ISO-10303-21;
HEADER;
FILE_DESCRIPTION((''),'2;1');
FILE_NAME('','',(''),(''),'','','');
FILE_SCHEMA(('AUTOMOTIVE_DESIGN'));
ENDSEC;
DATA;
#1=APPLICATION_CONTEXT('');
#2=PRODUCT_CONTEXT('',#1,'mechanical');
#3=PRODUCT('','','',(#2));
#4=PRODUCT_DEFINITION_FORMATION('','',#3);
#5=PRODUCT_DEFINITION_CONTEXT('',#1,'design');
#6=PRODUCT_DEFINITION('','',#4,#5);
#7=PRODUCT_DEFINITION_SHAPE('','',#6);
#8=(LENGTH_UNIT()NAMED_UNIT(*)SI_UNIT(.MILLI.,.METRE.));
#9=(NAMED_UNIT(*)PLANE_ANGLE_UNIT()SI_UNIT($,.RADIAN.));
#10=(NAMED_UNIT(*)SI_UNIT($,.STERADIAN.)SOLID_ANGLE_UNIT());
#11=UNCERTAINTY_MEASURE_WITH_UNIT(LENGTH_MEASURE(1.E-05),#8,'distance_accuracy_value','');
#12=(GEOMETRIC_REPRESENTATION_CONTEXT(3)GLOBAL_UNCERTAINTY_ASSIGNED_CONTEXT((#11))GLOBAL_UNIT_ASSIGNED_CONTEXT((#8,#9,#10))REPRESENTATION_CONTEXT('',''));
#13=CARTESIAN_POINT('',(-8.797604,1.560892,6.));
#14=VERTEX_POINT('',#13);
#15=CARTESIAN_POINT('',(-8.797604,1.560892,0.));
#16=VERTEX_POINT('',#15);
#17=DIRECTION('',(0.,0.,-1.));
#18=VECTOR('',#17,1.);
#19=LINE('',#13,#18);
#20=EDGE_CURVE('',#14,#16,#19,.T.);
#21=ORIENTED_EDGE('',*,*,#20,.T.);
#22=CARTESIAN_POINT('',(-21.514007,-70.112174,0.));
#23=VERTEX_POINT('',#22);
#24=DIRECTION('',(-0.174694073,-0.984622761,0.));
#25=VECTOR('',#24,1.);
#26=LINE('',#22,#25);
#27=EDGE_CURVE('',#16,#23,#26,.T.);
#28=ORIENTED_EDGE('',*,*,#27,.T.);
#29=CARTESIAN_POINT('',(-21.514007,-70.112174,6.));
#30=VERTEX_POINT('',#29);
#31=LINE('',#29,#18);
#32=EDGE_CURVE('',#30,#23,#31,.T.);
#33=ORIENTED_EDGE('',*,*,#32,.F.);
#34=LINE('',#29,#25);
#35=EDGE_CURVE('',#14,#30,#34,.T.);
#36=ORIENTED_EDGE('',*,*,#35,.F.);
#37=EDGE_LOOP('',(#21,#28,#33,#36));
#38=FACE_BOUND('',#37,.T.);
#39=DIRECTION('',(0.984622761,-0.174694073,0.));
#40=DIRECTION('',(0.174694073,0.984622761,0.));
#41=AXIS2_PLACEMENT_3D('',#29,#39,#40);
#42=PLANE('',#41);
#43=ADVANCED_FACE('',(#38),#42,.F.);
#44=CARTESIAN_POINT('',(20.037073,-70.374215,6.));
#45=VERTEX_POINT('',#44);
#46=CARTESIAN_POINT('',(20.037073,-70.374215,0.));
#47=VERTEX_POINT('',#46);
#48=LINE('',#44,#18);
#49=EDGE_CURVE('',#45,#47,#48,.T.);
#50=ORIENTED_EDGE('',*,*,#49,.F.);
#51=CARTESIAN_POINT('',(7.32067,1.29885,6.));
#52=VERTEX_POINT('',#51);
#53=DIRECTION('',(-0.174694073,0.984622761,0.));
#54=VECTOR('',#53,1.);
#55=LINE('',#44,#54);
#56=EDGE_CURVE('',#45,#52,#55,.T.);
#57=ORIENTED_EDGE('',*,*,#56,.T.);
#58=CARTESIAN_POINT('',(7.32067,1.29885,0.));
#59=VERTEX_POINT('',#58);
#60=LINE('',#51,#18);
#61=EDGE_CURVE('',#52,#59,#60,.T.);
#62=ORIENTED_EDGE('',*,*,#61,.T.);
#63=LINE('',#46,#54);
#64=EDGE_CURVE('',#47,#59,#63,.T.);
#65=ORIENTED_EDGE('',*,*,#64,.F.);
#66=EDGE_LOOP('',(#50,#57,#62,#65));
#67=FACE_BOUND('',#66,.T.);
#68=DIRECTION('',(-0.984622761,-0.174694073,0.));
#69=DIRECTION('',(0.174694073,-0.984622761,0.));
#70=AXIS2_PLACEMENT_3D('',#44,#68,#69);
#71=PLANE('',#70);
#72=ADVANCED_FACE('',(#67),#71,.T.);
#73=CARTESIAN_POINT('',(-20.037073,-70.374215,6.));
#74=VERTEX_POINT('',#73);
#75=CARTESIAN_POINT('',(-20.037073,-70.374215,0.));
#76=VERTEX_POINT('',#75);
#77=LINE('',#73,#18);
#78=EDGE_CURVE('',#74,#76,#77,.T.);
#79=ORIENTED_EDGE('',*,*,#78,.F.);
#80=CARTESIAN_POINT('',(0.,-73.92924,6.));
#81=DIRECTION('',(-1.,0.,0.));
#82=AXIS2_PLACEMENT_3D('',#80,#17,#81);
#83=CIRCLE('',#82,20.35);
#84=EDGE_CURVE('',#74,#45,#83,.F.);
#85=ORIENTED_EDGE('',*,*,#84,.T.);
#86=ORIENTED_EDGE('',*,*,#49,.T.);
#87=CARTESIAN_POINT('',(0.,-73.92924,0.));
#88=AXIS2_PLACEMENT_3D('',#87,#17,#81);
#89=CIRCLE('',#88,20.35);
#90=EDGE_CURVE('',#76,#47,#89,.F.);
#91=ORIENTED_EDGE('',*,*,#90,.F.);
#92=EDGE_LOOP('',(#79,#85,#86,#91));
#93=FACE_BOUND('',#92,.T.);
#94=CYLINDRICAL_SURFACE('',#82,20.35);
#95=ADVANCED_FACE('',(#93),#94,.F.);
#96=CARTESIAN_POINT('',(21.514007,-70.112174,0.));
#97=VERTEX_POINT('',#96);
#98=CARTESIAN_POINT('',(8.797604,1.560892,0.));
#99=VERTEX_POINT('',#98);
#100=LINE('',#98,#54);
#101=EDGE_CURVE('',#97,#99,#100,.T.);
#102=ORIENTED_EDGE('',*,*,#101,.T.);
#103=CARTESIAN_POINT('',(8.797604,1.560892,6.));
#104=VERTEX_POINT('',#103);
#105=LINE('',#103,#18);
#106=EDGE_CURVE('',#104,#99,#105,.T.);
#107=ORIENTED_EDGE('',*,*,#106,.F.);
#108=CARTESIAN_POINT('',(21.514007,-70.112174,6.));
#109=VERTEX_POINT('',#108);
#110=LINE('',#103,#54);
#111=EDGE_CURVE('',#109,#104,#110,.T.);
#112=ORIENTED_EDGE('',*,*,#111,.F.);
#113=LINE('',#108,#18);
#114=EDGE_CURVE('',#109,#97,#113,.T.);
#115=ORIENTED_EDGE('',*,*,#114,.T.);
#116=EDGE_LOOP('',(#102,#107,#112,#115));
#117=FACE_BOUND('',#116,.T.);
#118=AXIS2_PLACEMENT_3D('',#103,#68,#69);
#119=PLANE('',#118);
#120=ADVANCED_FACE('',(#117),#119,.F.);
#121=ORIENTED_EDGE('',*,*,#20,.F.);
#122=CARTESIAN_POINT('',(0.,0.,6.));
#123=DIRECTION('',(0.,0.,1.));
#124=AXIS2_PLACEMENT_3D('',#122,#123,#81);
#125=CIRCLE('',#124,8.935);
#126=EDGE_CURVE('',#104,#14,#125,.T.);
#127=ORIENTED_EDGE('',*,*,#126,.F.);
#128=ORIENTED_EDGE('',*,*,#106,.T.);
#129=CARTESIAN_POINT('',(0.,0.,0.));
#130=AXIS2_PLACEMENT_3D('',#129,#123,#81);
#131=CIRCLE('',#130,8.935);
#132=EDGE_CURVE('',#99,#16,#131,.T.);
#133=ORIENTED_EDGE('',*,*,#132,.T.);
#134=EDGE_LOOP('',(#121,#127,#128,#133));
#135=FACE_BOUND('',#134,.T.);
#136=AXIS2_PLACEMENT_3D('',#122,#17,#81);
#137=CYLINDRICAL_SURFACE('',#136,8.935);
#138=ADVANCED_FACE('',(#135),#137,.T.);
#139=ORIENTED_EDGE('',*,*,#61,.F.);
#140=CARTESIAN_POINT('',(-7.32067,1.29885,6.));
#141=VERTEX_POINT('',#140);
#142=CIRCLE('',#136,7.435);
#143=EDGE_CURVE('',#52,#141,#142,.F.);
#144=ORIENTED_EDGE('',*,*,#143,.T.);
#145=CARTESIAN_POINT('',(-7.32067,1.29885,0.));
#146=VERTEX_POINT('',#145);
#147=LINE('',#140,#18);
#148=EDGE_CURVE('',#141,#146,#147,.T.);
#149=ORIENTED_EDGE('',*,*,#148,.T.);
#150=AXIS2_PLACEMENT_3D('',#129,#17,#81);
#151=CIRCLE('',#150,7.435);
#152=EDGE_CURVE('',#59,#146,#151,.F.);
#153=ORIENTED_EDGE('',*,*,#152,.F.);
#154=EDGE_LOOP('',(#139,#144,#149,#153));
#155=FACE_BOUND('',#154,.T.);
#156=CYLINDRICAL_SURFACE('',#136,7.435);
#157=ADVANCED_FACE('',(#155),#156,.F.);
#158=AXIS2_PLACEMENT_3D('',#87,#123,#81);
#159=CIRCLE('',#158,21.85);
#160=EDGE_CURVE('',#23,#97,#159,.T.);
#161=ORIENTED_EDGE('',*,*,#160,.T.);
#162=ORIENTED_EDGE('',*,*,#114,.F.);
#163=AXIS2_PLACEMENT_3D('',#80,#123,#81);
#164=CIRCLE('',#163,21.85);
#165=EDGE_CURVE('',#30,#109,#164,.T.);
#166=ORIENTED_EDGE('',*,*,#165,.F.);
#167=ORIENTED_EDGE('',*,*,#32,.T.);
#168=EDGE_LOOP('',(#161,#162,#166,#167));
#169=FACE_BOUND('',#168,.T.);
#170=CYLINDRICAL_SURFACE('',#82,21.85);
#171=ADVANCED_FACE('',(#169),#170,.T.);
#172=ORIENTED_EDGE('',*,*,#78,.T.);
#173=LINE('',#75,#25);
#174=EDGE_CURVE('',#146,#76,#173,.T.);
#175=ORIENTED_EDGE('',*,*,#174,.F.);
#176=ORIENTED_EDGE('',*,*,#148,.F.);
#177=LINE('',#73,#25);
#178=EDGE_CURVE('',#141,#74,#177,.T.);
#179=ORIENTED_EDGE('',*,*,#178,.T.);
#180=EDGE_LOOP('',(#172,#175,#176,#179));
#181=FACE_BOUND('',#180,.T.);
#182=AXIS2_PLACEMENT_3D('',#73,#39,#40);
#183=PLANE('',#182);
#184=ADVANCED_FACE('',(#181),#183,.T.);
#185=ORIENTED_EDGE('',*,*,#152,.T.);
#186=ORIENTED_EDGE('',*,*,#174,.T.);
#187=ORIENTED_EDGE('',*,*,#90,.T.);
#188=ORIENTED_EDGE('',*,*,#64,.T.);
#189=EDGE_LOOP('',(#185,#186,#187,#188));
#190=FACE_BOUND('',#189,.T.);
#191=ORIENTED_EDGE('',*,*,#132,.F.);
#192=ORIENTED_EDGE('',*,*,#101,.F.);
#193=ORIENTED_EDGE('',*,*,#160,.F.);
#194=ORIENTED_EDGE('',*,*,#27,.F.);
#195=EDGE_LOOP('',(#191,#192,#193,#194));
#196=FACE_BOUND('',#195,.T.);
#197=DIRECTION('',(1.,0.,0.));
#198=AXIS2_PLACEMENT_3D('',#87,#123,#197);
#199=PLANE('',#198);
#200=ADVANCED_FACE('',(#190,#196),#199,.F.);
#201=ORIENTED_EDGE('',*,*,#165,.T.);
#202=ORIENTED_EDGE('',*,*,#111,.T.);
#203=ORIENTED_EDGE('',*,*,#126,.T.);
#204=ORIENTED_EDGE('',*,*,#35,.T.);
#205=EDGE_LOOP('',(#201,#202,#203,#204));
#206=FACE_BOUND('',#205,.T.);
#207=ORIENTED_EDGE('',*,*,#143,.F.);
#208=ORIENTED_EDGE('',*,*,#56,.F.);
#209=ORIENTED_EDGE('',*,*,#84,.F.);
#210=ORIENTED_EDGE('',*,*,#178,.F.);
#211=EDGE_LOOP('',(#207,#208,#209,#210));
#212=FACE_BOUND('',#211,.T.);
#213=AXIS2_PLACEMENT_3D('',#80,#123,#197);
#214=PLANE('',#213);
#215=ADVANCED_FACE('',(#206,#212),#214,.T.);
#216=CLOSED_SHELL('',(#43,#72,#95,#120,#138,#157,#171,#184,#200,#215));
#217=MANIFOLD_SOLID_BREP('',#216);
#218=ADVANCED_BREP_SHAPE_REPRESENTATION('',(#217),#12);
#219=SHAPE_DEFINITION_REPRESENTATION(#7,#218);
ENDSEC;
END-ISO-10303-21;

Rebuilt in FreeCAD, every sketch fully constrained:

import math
import FreeCAD as App
import Part
import Sketcher
Q = App.Units.Quantity

doc = App.newDocument("Part")
body = doc.addObject("PartDesign::Body", "Body")

# Sketch on XY plane
sketch1 = body.newObject("Sketcher::SketchObject", "Sketch")
sketch1.AttachmentSupport = (doc.getObject("XY_Plane"), [""])
sketch1.MapMode = "FlatFace"
sketch1.addGeometry([
    Part.LineSegment(App.Vector(22, -70, 0), App.Vector(9, 2, 0)),  # 0
    Part.ArcOfCircle(Part.Circle(App.Vector(0, 0, 0), App.Vector(0, 0, 1), 9), math.radians(10), math.radians(170)),  # 1
    Part.LineSegment(App.Vector(-9, 2, 0), App.Vector(-22, -70, 0)),  # 2
    Part.ArcOfCircle(Part.Circle(App.Vector(0, -74, 0), App.Vector(0, 0, 1), 22), math.radians(170), math.radians(370)),  # 3
    Part.LineSegment(App.Vector(7, 1, 0), App.Vector(20, -70, 0)),  # 4
    Part.ArcOfCircle(Part.Circle(App.Vector(0, -74, 0), App.Vector(0, 0, 1), 20), math.radians(170), math.radians(370)),  # 5
    Part.LineSegment(App.Vector(-20, -70, 0), App.Vector(-7, 1, 0)),  # 6
    Part.ArcOfCircle(Part.Circle(App.Vector(0, 0, 0), App.Vector(0, 0, 1), 7), math.radians(10), math.radians(170)),  # 7
], False)
sketch1.addConstraint([
    Sketcher.Constraint("Tangent", 0, 2, 1, 1),
    Sketcher.Constraint("Tangent", 1, 2, 2, 1),
    Sketcher.Constraint("Tangent", 2, 2, 3, 1),
    Sketcher.Constraint("Tangent", 3, 2, 0, 1),
    Sketcher.Constraint("Tangent", 4, 2, 5, 2),
    Sketcher.Constraint("Tangent", 5, 1, 6, 1),
    Sketcher.Constraint("Tangent", 6, 2, 7, 2),
    Sketcher.Constraint("Tangent", 7, 1, 4, 1),
    Sketcher.Constraint("Coincident", 1, 3, -1, 1),
    Sketcher.Constraint("Coincident", 7, 3, -1, 1),
    Sketcher.Constraint("Coincident", 5, 3, 3, 3),
    Sketcher.Constraint("PointOnObject", 3, 3, -2),
    Sketcher.Constraint("Parallel", 0, 4),
    Sketcher.Constraint("Radius", 3, Q("21.85 mm")),
    Sketcher.Constraint("Radius", 5, Q("20.35 mm")),
    Sketcher.Constraint("Radius", 1, Q("8.935 mm")),
    Sketcher.Constraint("DistanceY", 3, 3, -1, 1, Q("73.92924 mm")),
])
pad1 = body.newObject("PartDesign::Pad", "Pad")
pad1.Profile = sketch1
pad1.Length = 6

doc.recompute()
